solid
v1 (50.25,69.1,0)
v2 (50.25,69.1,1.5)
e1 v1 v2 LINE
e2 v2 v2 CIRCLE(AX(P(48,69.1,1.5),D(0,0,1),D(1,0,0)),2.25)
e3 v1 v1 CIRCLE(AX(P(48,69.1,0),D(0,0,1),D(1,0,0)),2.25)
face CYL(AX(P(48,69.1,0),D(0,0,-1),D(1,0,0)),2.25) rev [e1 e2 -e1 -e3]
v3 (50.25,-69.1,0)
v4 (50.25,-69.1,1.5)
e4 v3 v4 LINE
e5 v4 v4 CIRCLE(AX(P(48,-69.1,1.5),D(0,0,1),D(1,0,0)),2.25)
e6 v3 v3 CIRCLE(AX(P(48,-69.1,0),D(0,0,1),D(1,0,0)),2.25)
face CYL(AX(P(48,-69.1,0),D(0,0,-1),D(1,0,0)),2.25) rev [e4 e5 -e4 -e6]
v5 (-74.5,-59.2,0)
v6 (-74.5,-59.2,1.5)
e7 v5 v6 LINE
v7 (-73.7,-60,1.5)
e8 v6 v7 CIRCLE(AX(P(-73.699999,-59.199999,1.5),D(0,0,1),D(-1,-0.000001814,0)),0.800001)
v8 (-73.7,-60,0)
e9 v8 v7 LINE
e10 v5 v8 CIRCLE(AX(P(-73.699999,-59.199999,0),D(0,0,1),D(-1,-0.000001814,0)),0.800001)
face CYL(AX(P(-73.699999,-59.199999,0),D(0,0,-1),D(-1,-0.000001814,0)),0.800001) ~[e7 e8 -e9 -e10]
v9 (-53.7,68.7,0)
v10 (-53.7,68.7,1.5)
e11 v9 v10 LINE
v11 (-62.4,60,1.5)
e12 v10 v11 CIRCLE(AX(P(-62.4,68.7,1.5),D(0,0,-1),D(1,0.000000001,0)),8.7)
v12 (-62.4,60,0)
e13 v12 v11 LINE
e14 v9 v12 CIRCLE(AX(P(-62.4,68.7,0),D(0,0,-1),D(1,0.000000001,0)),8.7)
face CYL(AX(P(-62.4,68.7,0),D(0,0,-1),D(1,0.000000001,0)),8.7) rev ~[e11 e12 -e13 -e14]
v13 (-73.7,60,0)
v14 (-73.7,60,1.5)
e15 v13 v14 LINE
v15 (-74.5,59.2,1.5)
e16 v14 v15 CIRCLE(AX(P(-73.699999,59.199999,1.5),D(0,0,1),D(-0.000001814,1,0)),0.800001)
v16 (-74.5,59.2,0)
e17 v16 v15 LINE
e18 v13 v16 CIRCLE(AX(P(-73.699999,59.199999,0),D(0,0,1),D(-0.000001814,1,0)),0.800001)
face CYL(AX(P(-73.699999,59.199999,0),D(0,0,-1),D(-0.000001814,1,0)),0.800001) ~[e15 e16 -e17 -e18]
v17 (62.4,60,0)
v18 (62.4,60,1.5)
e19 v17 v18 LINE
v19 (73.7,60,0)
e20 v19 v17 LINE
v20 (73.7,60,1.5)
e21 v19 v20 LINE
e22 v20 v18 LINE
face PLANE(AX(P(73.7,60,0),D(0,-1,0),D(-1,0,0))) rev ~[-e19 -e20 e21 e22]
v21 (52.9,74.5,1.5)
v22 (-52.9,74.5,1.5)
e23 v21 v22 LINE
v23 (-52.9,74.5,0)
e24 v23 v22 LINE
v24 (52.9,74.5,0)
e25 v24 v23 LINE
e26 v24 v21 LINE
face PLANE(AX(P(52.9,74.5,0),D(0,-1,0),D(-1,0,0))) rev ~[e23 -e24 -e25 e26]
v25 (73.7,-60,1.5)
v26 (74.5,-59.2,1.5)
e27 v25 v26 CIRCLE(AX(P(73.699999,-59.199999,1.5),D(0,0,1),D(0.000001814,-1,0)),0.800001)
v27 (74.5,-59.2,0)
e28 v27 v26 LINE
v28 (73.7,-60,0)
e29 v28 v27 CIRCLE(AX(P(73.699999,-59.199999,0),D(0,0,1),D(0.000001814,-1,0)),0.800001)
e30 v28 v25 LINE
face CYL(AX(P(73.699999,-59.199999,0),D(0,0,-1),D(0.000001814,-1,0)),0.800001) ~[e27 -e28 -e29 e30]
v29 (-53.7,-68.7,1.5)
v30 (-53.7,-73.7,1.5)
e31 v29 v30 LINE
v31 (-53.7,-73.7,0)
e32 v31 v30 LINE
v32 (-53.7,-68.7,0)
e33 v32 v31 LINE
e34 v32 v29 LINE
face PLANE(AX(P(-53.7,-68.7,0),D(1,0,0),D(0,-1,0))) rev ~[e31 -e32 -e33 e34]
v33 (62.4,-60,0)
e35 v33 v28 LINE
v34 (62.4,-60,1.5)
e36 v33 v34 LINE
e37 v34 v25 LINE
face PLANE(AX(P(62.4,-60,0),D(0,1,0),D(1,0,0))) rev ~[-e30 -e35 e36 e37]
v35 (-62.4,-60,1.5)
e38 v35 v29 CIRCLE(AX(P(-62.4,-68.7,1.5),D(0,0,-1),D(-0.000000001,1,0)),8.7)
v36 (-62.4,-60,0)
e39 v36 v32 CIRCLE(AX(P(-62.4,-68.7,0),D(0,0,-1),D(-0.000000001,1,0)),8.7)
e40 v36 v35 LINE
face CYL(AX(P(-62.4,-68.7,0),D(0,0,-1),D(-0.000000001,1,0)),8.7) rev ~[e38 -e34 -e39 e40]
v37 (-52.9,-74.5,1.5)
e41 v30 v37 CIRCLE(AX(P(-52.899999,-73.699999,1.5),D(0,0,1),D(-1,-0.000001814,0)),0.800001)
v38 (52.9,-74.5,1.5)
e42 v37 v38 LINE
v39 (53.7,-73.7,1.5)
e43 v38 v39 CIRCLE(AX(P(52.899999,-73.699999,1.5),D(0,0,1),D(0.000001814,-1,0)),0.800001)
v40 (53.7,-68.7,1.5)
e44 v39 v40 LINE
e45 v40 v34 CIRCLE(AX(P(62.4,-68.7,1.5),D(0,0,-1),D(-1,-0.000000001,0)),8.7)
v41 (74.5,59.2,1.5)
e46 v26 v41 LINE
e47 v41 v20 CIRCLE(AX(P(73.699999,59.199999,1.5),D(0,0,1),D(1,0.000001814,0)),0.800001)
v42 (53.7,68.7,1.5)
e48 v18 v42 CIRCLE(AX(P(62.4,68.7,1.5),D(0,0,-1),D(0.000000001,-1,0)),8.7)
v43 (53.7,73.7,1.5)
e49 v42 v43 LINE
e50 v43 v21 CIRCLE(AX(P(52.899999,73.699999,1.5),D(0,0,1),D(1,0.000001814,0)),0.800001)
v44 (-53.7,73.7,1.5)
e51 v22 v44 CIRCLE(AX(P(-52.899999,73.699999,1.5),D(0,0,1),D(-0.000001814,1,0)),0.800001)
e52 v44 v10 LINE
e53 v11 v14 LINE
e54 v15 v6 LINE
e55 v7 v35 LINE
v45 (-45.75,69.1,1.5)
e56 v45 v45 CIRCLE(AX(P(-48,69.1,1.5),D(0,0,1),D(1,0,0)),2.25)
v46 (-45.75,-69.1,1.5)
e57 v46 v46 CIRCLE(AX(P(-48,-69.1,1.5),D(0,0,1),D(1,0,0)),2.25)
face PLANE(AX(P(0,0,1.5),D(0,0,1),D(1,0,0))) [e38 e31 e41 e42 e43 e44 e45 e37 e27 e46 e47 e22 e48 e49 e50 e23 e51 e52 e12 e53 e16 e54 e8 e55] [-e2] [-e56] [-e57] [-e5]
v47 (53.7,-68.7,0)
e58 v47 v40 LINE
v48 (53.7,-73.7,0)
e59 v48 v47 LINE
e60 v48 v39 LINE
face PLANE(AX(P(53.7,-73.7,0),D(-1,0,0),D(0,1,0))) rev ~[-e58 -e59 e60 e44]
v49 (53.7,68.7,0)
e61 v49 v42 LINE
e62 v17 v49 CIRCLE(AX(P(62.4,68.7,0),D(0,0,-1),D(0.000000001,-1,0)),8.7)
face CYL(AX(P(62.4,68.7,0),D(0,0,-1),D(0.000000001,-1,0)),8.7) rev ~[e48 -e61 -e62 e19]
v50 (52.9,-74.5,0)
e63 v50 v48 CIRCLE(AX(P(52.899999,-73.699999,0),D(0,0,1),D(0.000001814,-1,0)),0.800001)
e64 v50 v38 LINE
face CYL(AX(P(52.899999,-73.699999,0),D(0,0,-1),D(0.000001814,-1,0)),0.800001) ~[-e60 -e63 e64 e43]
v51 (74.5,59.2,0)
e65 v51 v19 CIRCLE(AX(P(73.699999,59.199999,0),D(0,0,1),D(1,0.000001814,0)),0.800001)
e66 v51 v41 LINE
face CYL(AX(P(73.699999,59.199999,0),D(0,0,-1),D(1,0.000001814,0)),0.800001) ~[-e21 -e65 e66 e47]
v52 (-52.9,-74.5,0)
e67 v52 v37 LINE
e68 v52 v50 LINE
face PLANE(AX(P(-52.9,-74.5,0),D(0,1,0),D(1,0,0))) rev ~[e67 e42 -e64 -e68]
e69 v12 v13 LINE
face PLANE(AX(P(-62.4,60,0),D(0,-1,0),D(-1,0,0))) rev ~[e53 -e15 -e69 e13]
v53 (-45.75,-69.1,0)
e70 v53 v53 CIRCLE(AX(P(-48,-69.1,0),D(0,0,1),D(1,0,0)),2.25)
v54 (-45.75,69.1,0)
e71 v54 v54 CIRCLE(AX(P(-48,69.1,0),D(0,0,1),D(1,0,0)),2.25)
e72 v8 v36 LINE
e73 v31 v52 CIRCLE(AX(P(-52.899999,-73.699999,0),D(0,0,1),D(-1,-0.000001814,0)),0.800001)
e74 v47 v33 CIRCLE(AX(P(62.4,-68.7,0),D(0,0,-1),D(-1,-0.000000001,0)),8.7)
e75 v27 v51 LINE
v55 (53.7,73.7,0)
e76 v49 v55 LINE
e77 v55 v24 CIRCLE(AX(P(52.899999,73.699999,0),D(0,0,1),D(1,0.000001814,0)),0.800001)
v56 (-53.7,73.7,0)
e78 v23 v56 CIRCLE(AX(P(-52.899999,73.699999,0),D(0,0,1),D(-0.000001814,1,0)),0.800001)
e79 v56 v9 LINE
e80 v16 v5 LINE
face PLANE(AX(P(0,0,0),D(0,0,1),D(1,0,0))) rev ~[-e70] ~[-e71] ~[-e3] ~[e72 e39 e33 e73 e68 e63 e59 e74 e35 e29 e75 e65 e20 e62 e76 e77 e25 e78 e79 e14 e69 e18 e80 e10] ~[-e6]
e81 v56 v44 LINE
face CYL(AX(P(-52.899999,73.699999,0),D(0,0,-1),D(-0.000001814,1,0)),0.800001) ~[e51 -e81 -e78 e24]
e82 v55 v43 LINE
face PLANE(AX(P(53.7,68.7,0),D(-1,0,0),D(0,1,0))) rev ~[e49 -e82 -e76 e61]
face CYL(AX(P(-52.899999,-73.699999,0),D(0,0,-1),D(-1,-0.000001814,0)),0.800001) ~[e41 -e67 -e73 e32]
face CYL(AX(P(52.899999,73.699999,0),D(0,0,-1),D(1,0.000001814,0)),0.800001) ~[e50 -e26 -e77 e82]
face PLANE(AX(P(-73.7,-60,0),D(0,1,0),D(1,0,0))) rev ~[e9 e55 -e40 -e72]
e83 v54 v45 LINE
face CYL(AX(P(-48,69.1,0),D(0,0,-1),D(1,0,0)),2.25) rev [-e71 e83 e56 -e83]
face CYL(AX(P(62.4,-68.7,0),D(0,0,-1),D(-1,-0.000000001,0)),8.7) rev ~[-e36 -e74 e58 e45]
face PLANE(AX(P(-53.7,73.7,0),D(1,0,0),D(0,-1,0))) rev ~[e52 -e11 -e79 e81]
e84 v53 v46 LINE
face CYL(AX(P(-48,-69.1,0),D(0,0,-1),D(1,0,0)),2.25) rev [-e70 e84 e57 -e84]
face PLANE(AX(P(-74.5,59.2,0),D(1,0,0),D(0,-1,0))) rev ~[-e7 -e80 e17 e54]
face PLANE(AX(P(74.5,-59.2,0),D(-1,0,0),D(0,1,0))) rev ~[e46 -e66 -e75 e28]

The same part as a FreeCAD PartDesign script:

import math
import FreeCAD as App
import Part
import Sketcher

V = App.Vector
Q = App.Units.Quantity

doc = App.newDocument("Part")
body = doc.addObject("PartDesign::Body", "Body")

sketch1 = doc.addObject("Sketcher::SketchObject", "Sketch")
body.addObject(sketch1)
sketch1.AttachmentSupport = (doc.XY_Plane, [""])
sketch1.MapMode = "FlatFace"
sketch1.addGeometry([
    Part.LineSegment(V(52.9, 74.5, 0), V(-52.9, 74.5, 0)),
    Part.ArcOfCircle(Part.Circle(V(-52.899999, 73.699999, 0), V(0, 0, 1), 0.800001), math.radians(90.000104), math.radians(179.999896)),
    Part.LineSegment(V(-53.7, 73.7, 0), V(-53.7, 68.7, 0)),
    Part.ArcOfCircle(Part.Circle(V(-62.4, 68.7, 0), V(0, 0, 1), 8.7), math.radians(-90), math.radians(0)),
    Part.LineSegment(V(-62.4, 60, 0), V(-73.7, 60, 0)),
    Part.ArcOfCircle(Part.Circle(V(-73.699999, 59.199999, 0), V(0, 0, 1), 0.800001), math.radians(90.000104), math.radians(179.999896)),
    Part.LineSegment(V(-74.5, 59.2, 0), V(-74.5, -59.2, 0)),
    Part.ArcOfCircle(Part.Circle(V(-73.699999, -59.199999, 0), V(0, 0, 1), 0.800001), math.radians(-179.999896), math.radians(-90.000104)),
    Part.LineSegment(V(-73.7, -60, 0), V(-62.4, -60, 0)),
    Part.ArcOfCircle(Part.Circle(V(-62.4, -68.7, 0), V(0, 0, 1), 8.7), math.radians(0), math.radians(90)),
    Part.LineSegment(V(-53.7, -68.7, 0), V(-53.7, -73.7, 0)),
    Part.ArcOfCircle(Part.Circle(V(-52.899999, -73.699999, 0), V(0, 0, 1), 0.800001), math.radians(-179.999896), math.radians(-90.000104)),
    Part.LineSegment(V(-52.9, -74.5, 0), V(52.9, -74.5, 0)),
    Part.ArcOfCircle(Part.Circle(V(52.899999, -73.699999, 0), V(0, 0, 1), 0.800001), math.radians(-89.999896), math.radians(-0.000104)),
    Part.LineSegment(V(53.7, -73.7, 0), V(53.7, -68.7, 0)),
    Part.ArcOfCircle(Part.Circle(V(62.4, -68.7, 0), V(0, 0, 1), 8.7), math.radians(90), math.radians(180)),
    Part.LineSegment(V(62.4, -60, 0), V(73.7, -60, 0)),
    Part.ArcOfCircle(Part.Circle(V(73.699999, -59.199999, 0), V(0, 0, 1), 0.800001), math.radians(-89.999896), math.radians(-0.000104)),
    Part.LineSegment(V(74.5, -59.2, 0), V(74.5, 59.2, 0)),
    Part.ArcOfCircle(Part.Circle(V(73.699999, 59.199999, 0), V(0, 0, 1), 0.800001), math.radians(0.000104), math.radians(89.999896)),
    Part.LineSegment(V(73.7, 60, 0), V(62.4, 60, 0)),
    Part.ArcOfCircle(Part.Circle(V(62.4, 68.7, 0), V(0, 0, 1), 8.7), math.radians(180), math.radians(270)),
    Part.LineSegment(V(53.7, 68.7, 0), V(53.7, 73.7, 0)),
    Part.ArcOfCircle(Part.Circle(V(52.899999, 73.699999, 0), V(0, 0, 1), 0.800001), math.radians(0.000104), math.radians(89.999896)),
    Part.Circle(V(-48, -69.1, 0), V(0, 0, 1), 2.25),
    Part.Circle(V(48, -69.1, 0), V(0, 0, 1), 2.25),
    Part.Circle(V(-48, 69.1, 0), V(0, 0, 1), 2.25),
    Part.Circle(V(48, 69.1, 0), V(0, 0, 1), 2.25),
], False)
sketch1.addConstraint([
    Sketcher.Constraint("Tangent", 0, 2, 1, 1),
    Sketcher.Constraint("Tangent", 1, 2, 2, 1),
    Sketcher.Constraint("Tangent", 2, 2, 3, 2),
    Sketcher.Constraint("Tangent", 3, 1, 4, 1),
    Sketcher.Constraint("Tangent", 4, 2, 5, 1),
    Sketcher.Constraint("Tangent", 5, 2, 6, 1),
    Sketcher.Constraint("Tangent", 6, 2, 7, 1),
    Sketcher.Constraint("Tangent", 7, 2, 8, 1),
    Sketcher.Constraint("Tangent", 8, 2, 9, 2),
    Sketcher.Constraint("Tangent", 9, 1, 10, 1),
    Sketcher.Constraint("Tangent", 10, 2, 11, 1),
    Sketcher.Constraint("Tangent", 11, 2, 12, 1),
    Sketcher.Constraint("Tangent", 12, 2, 13, 1),
    Sketcher.Constraint("Tangent", 13, 2, 14, 1),
    Sketcher.Constraint("Tangent", 14, 2, 15, 2),
    Sketcher.Constraint("Tangent", 15, 1, 16, 1),
    Sketcher.Constraint("Tangent", 16, 2, 17, 1),
    Sketcher.Constraint("Tangent", 17, 2, 18, 1),
    Sketcher.Constraint("Tangent", 18, 2, 19, 1),
    Sketcher.Constraint("Tangent", 19, 2, 20, 1),
    Sketcher.Constraint("Tangent", 20, 2, 21, 2),
    Sketcher.Constraint("Tangent", 21, 1, 22, 1),
    Sketcher.Constraint("Tangent", 22, 2, 23, 1),
    Sketcher.Constraint("Tangent", 23, 2, 0, 1),
    Sketcher.Constraint("Horizontal", 0),
    Sketcher.Constraint("Vertical", 2),
    Sketcher.Constraint("Horizontal", 4),
    Sketcher.Constraint("Vertical", 6),
    Sketcher.Constraint("Horizontal", 8),
    Sketcher.Constraint("Vertical", 10),
    Sketcher.Constraint("Horizontal", 12),
    Sketcher.Constraint("Vertical", 14),
    Sketcher.Constraint("Horizontal", 16),
    Sketcher.Constraint("Vertical", 18),
    Sketcher.Constraint("Horizontal", 20),
    Sketcher.Constraint("Vertical", 22),
    Sketcher.Constraint("Equal", 1, 5),
    Sketcher.Constraint("Equal", 5, 7),
    Sketcher.Constraint("Equal", 3, 9),
    Sketcher.Constraint("Equal", 7, 11),
    Sketcher.Constraint("Equal", 11, 13),
    Sketcher.Constraint("Equal", 9, 15),
    Sketcher.Constraint("Equal", 13, 17),
    Sketcher.Constraint("Equal", 17, 19),
    Sketcher.Constraint("Equal", 15, 21),
    Sketcher.Constraint("Equal", 19, 23),
    Sketcher.Constraint("Equal", 24, 25),
    Sketcher.Constraint("Equal", 25, 26),
    Sketcher.Constraint("Equal", 26, 27),
    Sketcher.Constraint("Symmetric", 1, 3, 13, 3, -1, 1),
    Sketcher.Constraint("Symmetric", 5, 3, 17, 3, -1, 1),
    Sketcher.Constraint("Symmetric", 9, 3, 21, 3, -1, 1),
    Sketcher.Constraint("Symmetric", 25, 3, 26, 3, -1, 1),
    Sketcher.Constraint("Symmetric", 24, 3, 27, 3, -1, 1),
    Sketcher.Constraint("Symmetric", 9, 3, 15, 3, -2),
    Sketcher.Constraint("Symmetric", 24, 3, 25, 3, -2),
    Sketcher.Constraint("Diameter", 24, Q("4.5 mm")),
    Sketcher.Constraint("Radius", 1, Q("0.800001 mm")),
    Sketcher.Constraint("Radius", 3, Q("8.7 mm")),
    Sketcher.Constraint("DistanceY", 2, 2, 2, 1, Q("5 mm")),
    Sketcher.Constraint("DistanceX", 0, 2, 0, 1, Q("105.8 mm")),
    Sketcher.Constraint("DistanceX", 4, 2, 4, 1, Q("11.3 mm")),
    Sketcher.Constraint("DistanceY", 6, 2, 6, 1, Q("118.4 mm")),
    Sketcher.Constraint("DistanceX", 24, 3, -1, 1, Q("48 mm")),
    Sketcher.Constraint("DistanceY", 24, 3, -1, 1, Q("69.1 mm")),
])
pad1 = doc.addObject("PartDesign::Pad", "Pad")
body.addObject(pad1)
pad1.Profile = sketch1
pad1.Length = 1.5

doc.recompute()
